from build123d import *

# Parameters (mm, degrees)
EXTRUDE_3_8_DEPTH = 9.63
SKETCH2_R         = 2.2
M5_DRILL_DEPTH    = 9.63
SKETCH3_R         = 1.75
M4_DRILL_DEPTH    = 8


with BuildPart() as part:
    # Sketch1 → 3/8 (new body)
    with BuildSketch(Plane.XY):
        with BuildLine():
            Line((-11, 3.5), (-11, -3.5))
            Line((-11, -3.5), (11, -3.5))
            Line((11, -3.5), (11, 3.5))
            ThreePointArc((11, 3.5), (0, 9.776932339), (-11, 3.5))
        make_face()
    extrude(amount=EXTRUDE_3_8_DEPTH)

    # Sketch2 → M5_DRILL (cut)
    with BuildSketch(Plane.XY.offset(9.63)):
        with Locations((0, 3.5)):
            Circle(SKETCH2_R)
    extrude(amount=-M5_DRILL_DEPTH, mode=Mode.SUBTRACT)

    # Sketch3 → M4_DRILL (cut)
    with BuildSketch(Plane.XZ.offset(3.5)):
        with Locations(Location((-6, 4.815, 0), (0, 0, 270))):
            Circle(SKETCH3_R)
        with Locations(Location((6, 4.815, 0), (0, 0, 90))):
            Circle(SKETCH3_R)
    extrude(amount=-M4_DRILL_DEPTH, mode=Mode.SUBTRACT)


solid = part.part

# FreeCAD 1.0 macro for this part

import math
import FreeCAD as App
import Part
import Sketcher

V = App.Vector
Q = App.Units.Quantity

doc = App.newDocument("Part")
body = doc.addObject("PartDesign::Body", "Body")

# Sketch on XY plane
sketch1 = body.newObject("Sketcher::SketchObject", "Sketch")
sketch1.AttachmentSupport = (doc.getObject("XY_Plane"), [""])
sketch1.MapMode = "FlatFace"
sketch1.addGeometry([
    Part.LineSegment(V(-11, 4, 0), V(-11, -4, 0)),
    Part.LineSegment(V(-11, -4, 0), V(11, -4, 0)),
    Part.LineSegment(V(11, -4, 0), V(11, 4, 0)),
    Part.ArcOfCircle(Part.Circle(V(0, -3, 0), V(0, 0, 1), 13), math.radians(31), math.radians(149)),
], False)
sketch1.addConstraint([
    Sketcher.Constraint("Coincident", 0, 2, 1, 1),
    Sketcher.Constraint("Coincident", 1, 2, 2, 1),
    Sketcher.Constraint("Coincident", 2, 2, 3, 1),
    Sketcher.Constraint("Coincident", 3, 2, 0, 1),
    Sketcher.Constraint("Vertical", 0),
    Sketcher.Constraint("Horizontal", 1),
    Sketcher.Constraint("Vertical", 2),
    Sketcher.Constraint("Symmetric", 0, 2, 2, 2, -1, 1),
    Sketcher.Constraint("PointOnObject", 3, 3, -2),
    Sketcher.Constraint("DistanceX", 1, 1, 1, 2, Q("22 mm")),
    Sketcher.Constraint("DistanceY", 0, 2, 0, 1, Q("7 mm")),
    Sketcher.Constraint("DistanceY", 3, 3, -1, 1, Q("3 mm")),
])
pad1 = body.newObject("PartDesign::Pad", "Pad")
pad1.Profile = sketch1
pad1.Length = 9.63

# Sketch on XY plane
sketch2 = body.newObject("Sketcher::SketchObject", "Sketch001")
sketch2.AttachmentSupport = (doc.getObject("XY_Plane"), [""])
sketch2.MapMode = "FlatFace"
sketch2.AttachmentOffset = App.Placement(V(0, 0, 9.63), App.Rotation())
sketch2.addGeometry(Part.Circle(V(0, 3.5, 0), V(0, 0, 1), 2.2), False)
sketch2.addConstraint([
    Sketcher.Constraint("PointOnObject", 0, 3, -2),
    Sketcher.Constraint("Diameter", 0, Q("4.4 mm")),
    Sketcher.Constraint("DistanceY", -1, 1, 0, 3, Q("3.5 mm")),
])
pocket1 = body.newObject("PartDesign::Pocket", "Pocket")
pocket1.Profile = sketch2
pocket1.Length = 9.63

# Sketch on XZ plane
sketch3 = body.newObject("Sketcher::SketchObject", "Sketch002")
sketch3.AttachmentSupport = (doc.getObject("XZ_Plane"), [""])
sketch3.MapMode = "FlatFace"
sketch3.AttachmentOffset = App.Placement(V(0, 0, 3.5), App.Rotation())
sketch3.addGeometry([
    Part.Circle(V(-6, 4.8, 0), V(0, 0, 1), 1.8),
    Part.Circle(V(6, 4.8, 0), V(0, 0, 1), 1.8),
], False)
sketch3.addConstraint([
    Sketcher.Constraint("Equal", 0, 1),
    Sketcher.Constraint("Symmetric", 0, 3, 1, 3, -2),
    Sketcher.Constraint("Diameter", 0, Q("3.5 mm")),
    Sketcher.Constraint("DistanceX", 0, 3, -1, 1, Q("6 mm")),
    Sketcher.Constraint("DistanceY", -1, 1, 0, 3, Q("4.815 mm")),
])
pocket2 = body.newObject("PartDesign::Pocket", "Pocket001")
pocket2.Profile = sketch3
pocket2.Length = 8

doc.recompute()
